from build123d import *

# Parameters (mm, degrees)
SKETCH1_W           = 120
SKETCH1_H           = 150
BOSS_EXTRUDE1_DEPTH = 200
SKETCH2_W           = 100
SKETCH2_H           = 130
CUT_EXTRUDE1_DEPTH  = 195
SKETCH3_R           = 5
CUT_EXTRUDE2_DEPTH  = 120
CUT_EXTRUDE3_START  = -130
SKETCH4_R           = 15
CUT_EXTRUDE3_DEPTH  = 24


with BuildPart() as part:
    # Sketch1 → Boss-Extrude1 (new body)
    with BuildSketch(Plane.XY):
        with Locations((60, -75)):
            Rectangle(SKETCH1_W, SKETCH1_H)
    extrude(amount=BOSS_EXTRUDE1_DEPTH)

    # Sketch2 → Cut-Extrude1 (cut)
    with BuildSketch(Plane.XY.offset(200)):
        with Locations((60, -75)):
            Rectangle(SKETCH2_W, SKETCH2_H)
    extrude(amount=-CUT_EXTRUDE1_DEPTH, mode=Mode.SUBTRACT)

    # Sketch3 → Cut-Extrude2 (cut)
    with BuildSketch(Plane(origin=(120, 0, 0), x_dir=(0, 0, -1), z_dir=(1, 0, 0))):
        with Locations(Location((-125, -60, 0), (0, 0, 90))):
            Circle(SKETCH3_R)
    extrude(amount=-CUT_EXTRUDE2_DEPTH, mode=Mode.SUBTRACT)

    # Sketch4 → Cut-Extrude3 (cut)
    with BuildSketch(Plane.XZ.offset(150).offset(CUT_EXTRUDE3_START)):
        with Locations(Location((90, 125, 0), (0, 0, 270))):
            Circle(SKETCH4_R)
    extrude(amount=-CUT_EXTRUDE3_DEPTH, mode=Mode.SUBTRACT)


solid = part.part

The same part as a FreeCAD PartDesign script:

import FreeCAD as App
import Part
import Sketcher

V = App.Vector


def add_polygon(sketch, points):
    """Adds a closed chain of lines whose ends are joined by coincident constraints."""
    first, n = sketch.GeometryCount, len(points)
    for a, b in zip(points, points[1:] + points[:1]):
        sketch.addGeometry(Part.LineSegment(App.Vector(*a, 0), App.Vector(*b, 0)), False)
    for i in range(n):
        sketch.addConstraint(Sketcher.Constraint("Coincident", first + i, 2, first + (i + 1) % n, 1))

doc = App.newDocument("Part")
body = doc.addObject("PartDesign::Body", "Body")

sketch1 = body.newObject("Sketcher::SketchObject", "Sketch")
sketch1.AttachmentSupport = (doc.getObject("XY_Plane"), [""])
sketch1.MapMode = "FlatFace"
add_polygon(sketch1, [(0, 0), (0, -150), (120, -150), (120, 0)])
sketch1.addConstraint([
    Sketcher.Constraint("Vertical", 0),
    Sketcher.Constraint("Horizontal", 1),
    Sketcher.Constraint("Vertical", 2),
    Sketcher.Constraint("Horizontal", 3),
    Sketcher.Constraint("Coincident", 3, 2, -1, 1),
    Sketcher.Constraint("DistanceX", 1, 1, 1, 2, 120.0),
    Sketcher.Constraint("DistanceY", 0, 2, 0, 1, 150.0),
])
pad1 = body.newObject("PartDesign::Pad", "Pad")
pad1.Profile = sketch1
pad1.Length = 200

sketch2 = body.newObject("Sketcher::SketchObject", "Sketch001")
sketch2.AttachmentSupport = (doc.getObject("XY_Plane"), [""])
sketch2.MapMode = "FlatFace"
sketch2.AttachmentOffset = App.Placement(V(0, 0, 200), App.Rotation())
add_polygon(sketch2, [(10, -10), (10, -140), (110, -140), (110, -10)])
sketch2.addConstraint([
    Sketcher.Constraint("Vertical", 0),
    Sketcher.Constraint("Horizontal", 1),
    Sketcher.Constraint("Vertical", 2),
    Sketcher.Constraint("Horizontal", 3),
    Sketcher.Constraint("DistanceX", 1, 1, 1, 2, 100.0),
    Sketcher.Constraint("DistanceY", 0, 2, 0, 1, 130.0),
    Sketcher.Constraint("DistanceX", -1, 1, 0, 2, 10.0),
    Sketcher.Constraint("DistanceY", 0, 2, -1, 1, 140.0),
])
pocket1 = body.newObject("PartDesign::Pocket", "Pocket")
pocket1.Profile = sketch2
pocket1.Length = 195

sketch3 = body.newObject("Sketcher::SketchObject", "Sketch002")
sketch3.AttachmentSupport = (doc.getObject("YZ_Plane"), [""])
sketch3.MapMode = "FlatFace"
sketch3.AttachmentOffset = App.Placement(V(0, 0, 120), App.Rotation())
sketch3.addGeometry(Part.Circle(V(-60, 125, 0), V(0, 0, 1), 5), False)
sketch3.addConstraint([
    Sketcher.Constraint("Diameter", 0, 10.0),
    Sketcher.Constraint("DistanceX", 0, 3, -1, 1, 60.0),
    Sketcher.Constraint("DistanceY", -1, 1, 0, 3, 125.0),
])
pocket2 = body.newObject("PartDesign::Pocket", "Pocket001")
pocket2.Profile = sketch3
pocket2.Length = 120

sketch4 = body.newObject("Sketcher::SketchObject", "Sketch003")
sketch4.AttachmentSupport = (doc.getObject("XZ_Plane"), [""])
sketch4.MapMode = "FlatFace"
sketch4.AttachmentOffset = App.Placement(V(0, 0, 20), App.Rotation())
sketch4.addGeometry(Part.Circle(V(90, 125, 0), V(0, 0, 1), 15), False)
sketch4.addConstraint([
    Sketcher.Constraint("Diameter", 0, 30.0),
    Sketcher.Constraint("DistanceX", -1, 1, 0, 3, 90.0),
    Sketcher.Constraint("DistanceY", -1, 1, 0, 3, 125.0),
])
pocket3 = body.newObject("PartDesign::Pocket", "Pocket002")
pocket3.Profile = sketch4
pocket3.Length = 24

doc.recompute()
